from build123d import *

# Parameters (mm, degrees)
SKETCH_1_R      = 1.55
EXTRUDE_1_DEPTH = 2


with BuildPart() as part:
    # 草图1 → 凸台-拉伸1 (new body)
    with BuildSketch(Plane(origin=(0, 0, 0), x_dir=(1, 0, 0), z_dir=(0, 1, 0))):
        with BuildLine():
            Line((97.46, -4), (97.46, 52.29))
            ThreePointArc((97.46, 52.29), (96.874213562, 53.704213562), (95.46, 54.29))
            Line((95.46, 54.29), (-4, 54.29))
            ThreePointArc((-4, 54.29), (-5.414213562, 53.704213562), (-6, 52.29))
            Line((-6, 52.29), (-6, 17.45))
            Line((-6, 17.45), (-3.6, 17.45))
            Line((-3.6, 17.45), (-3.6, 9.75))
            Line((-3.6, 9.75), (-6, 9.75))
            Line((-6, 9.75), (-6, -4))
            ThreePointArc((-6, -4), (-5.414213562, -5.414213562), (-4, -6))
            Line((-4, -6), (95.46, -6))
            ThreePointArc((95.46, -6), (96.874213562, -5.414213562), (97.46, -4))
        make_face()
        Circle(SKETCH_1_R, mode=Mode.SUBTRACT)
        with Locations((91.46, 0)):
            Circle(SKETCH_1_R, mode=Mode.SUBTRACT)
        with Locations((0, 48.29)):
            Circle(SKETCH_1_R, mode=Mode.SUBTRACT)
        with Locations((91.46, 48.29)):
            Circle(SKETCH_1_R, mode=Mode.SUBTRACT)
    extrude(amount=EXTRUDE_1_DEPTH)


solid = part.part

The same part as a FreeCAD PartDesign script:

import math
import FreeCAD as App
import Part
import Sketcher

V = App.Vector

doc = App.newDocument("Part")
params = doc.addObject("Spreadsheet::Sheet", "Params")
for row, (alias, value) in enumerate([
    ("sketch1_radius", "2 mm"),
    ("sketch1_diameter", "3.1 mm"),
    ("sketch1_width", "2.4 mm"),
    ("sketch1_height", "7.7 mm"),
    ("sketch1_width2", "99.46 mm"),
    ("pad1_length", "2 mm"),
], start=1):
    params.set(f"A{row}", alias)
    params.set(f"B{row}", "=" + value)
    params.setAlias(f"B{row}", alias)

body = doc.addObject("PartDesign::Body", "Body")

sketch1 = doc.addObject("Sketcher::SketchObject", "Sketch")
body.addObject(sketch1)
sketch1.AttachmentSupport = (doc.XZ_Plane, [""])
sketch1.MapMode = "FlatFace"
sketch1.addGeometry([
    Part.LineSegment(V(97.46, 4, 0), V(97.46, -52.29, 0)),
    Part.ArcOfCircle(Part.Circle(V(95.46, -52.29, 0), V(0, 0, 1), 2), math.radians(-90), math.radians(0)),
    Part.LineSegment(V(95.46, -54.29, 0), V(-4, -54.29, 0)),
    Part.ArcOfCircle(Part.Circle(V(-4, -52.29, 0), V(0, 0, 1), 2), math.radians(-180), math.radians(-90)),
    Part.LineSegment(V(-6, -52.29, 0), V(-6, -17.45, 0)),
    Part.LineSegment(V(-6, -17.45, 0), V(-3.6, -17.45, 0)),
    Part.LineSegment(V(-3.6, -17.45, 0), V(-3.6, -9.75, 0)),
    Part.LineSegment(V(-3.6, -9.75, 0), V(-6, -9.75, 0)),
    Part.LineSegment(V(-6, -9.75, 0), V(-6, 4, 0)),
    Part.ArcOfCircle(Part.Circle(V(-4, 4, 0), V(0, 0, 1), 2), math.radians(90), math.radians(180)),
    Part.LineSegment(V(-4, 6, 0), V(95.46, 6, 0)),
    Part.ArcOfCircle(Part.Circle(V(95.46, 4, 0), V(0, 0, 1), 2), math.radians(0), math.radians(90)),
    Part.Circle(V(0, 0, 0), V(0, 0, 1), 1.55),
    Part.Circle(V(91.46, 0, 0), V(0, 0, 1), 1.55),
    Part.Circle(V(0, -48.29, 0), V(0, 0, 1), 1.55),
    Part.Circle(V(91.46, -48.29, 0), V(0, 0, 1), 1.55),
], False)
sketch1.addConstraint([
    Sketcher.Constraint("Tangent", 0, 2, 1, 2),
    Sketcher.Constraint("Tangent", 1, 1, 2, 1),
    Sketcher.Constraint("Tangent", 2, 2, 3, 2),
    Sketcher.Constraint("Tangent", 3, 1, 4, 1),
    Sketcher.Constraint("Coincident", 4, 2, 5, 1),
    Sketcher.Constraint("Coincident", 5, 2, 6, 1),
    Sketcher.Constraint("Coincident", 6, 2, 7, 1),
    Sketcher.Constraint("Coincident", 7, 2, 8, 1),
    Sketcher.Constraint("Tangent", 8, 2, 9, 2),
    Sketcher.Constraint("Tangent", 9, 1, 10, 1),
    Sketcher.Constraint("Tangent", 10, 2, 11, 2),
    Sketcher.Constraint("Tangent", 11, 1, 0, 1),
    Sketcher.Constraint("Vertical", 0),
    Sketcher.Constraint("Horizontal", 2),
    Sketcher.Constraint("Vertical", 4),
    Sketcher.Constraint("Horizontal", 5),
    Sketcher.Constraint("Vertical", 6),
    Sketcher.Constraint("Horizontal", 7),
    Sketcher.Constraint("Vertical", 8),
    Sketcher.Constraint("Horizontal", 10),
    Sketcher.Constraint("Coincident", 12, 3, -1, 1),
    Sketcher.Constraint("Equal", 1, 3),
    Sketcher.Constraint("Equal", 3, 9),
    Sketcher.Constraint("Equal", 9, 11),
    Sketcher.Constraint("Equal", 12, 13),
    Sketcher.Constraint("Equal", 13, 14),
    Sketcher.Constraint("Equal", 14, 15),
    Sketcher.Constraint("PointOnObject", 13, 3, -1),
    Sketcher.Constraint("PointOnObject", 14, 3, -2),
    Sketcher.Constraint("Horizontal", 14, 3, 15, 3),
    Sketcher.Constraint("Vertical", 3, 3, 9, 3),
    Sketcher.Constraint("Vertical", 13, 3, 15, 3),
    Sketcher.Constraint("Radius", 1, 2.0),
    Sketcher.Constraint("Diameter", 12, 3.1),
    Sketcher.Constraint("DistanceX", 5, 1, 5, 2, 2.4),
    Sketcher.Constraint("DistanceY", 6, 1, 6, 2, 7.7),
    Sketcher.Constraint("DistanceX", 3, 3, -1, 1, 4.0),
    Sketcher.Constraint("DistanceY", -1, 1, 9, 3, 4.0),
    Sketcher.Constraint("DistanceX", 13, 3, 11, 3, 4.0),
    Sketcher.Constraint("DistanceY", 3, 3, 14, 3, 4.0),
    Sketcher.Constraint("DistanceX", 2, 2, 2, 1, 99.46),
    Sketcher.Constraint("DistanceY", 0, 2, 0, 1, 56.29),
    Sketcher.Constraint("DistanceY", 4, 1, 4, 2, 34.84),
])
sketch1.setExpression("Constraints[32]", "Params.sketch1_radius")
sketch1.setExpression("Constraints[33]", "Params.sketch1_diameter")
sketch1.setExpression("Constraints[34]", "Params.sketch1_width")
sketch1.setExpression("Constraints[35]", "Params.sketch1_height")
sketch1.setExpression("Constraints[40]", "Params.sketch1_width2")
pad1 = doc.addObject("PartDesign::Pad", "Pad")
body.addObject(pad1)
pad1.Profile = sketch1
pad1.setExpression("Length", "Params.pad1_length")
pad1.Reversed = True

doc.recompute()
